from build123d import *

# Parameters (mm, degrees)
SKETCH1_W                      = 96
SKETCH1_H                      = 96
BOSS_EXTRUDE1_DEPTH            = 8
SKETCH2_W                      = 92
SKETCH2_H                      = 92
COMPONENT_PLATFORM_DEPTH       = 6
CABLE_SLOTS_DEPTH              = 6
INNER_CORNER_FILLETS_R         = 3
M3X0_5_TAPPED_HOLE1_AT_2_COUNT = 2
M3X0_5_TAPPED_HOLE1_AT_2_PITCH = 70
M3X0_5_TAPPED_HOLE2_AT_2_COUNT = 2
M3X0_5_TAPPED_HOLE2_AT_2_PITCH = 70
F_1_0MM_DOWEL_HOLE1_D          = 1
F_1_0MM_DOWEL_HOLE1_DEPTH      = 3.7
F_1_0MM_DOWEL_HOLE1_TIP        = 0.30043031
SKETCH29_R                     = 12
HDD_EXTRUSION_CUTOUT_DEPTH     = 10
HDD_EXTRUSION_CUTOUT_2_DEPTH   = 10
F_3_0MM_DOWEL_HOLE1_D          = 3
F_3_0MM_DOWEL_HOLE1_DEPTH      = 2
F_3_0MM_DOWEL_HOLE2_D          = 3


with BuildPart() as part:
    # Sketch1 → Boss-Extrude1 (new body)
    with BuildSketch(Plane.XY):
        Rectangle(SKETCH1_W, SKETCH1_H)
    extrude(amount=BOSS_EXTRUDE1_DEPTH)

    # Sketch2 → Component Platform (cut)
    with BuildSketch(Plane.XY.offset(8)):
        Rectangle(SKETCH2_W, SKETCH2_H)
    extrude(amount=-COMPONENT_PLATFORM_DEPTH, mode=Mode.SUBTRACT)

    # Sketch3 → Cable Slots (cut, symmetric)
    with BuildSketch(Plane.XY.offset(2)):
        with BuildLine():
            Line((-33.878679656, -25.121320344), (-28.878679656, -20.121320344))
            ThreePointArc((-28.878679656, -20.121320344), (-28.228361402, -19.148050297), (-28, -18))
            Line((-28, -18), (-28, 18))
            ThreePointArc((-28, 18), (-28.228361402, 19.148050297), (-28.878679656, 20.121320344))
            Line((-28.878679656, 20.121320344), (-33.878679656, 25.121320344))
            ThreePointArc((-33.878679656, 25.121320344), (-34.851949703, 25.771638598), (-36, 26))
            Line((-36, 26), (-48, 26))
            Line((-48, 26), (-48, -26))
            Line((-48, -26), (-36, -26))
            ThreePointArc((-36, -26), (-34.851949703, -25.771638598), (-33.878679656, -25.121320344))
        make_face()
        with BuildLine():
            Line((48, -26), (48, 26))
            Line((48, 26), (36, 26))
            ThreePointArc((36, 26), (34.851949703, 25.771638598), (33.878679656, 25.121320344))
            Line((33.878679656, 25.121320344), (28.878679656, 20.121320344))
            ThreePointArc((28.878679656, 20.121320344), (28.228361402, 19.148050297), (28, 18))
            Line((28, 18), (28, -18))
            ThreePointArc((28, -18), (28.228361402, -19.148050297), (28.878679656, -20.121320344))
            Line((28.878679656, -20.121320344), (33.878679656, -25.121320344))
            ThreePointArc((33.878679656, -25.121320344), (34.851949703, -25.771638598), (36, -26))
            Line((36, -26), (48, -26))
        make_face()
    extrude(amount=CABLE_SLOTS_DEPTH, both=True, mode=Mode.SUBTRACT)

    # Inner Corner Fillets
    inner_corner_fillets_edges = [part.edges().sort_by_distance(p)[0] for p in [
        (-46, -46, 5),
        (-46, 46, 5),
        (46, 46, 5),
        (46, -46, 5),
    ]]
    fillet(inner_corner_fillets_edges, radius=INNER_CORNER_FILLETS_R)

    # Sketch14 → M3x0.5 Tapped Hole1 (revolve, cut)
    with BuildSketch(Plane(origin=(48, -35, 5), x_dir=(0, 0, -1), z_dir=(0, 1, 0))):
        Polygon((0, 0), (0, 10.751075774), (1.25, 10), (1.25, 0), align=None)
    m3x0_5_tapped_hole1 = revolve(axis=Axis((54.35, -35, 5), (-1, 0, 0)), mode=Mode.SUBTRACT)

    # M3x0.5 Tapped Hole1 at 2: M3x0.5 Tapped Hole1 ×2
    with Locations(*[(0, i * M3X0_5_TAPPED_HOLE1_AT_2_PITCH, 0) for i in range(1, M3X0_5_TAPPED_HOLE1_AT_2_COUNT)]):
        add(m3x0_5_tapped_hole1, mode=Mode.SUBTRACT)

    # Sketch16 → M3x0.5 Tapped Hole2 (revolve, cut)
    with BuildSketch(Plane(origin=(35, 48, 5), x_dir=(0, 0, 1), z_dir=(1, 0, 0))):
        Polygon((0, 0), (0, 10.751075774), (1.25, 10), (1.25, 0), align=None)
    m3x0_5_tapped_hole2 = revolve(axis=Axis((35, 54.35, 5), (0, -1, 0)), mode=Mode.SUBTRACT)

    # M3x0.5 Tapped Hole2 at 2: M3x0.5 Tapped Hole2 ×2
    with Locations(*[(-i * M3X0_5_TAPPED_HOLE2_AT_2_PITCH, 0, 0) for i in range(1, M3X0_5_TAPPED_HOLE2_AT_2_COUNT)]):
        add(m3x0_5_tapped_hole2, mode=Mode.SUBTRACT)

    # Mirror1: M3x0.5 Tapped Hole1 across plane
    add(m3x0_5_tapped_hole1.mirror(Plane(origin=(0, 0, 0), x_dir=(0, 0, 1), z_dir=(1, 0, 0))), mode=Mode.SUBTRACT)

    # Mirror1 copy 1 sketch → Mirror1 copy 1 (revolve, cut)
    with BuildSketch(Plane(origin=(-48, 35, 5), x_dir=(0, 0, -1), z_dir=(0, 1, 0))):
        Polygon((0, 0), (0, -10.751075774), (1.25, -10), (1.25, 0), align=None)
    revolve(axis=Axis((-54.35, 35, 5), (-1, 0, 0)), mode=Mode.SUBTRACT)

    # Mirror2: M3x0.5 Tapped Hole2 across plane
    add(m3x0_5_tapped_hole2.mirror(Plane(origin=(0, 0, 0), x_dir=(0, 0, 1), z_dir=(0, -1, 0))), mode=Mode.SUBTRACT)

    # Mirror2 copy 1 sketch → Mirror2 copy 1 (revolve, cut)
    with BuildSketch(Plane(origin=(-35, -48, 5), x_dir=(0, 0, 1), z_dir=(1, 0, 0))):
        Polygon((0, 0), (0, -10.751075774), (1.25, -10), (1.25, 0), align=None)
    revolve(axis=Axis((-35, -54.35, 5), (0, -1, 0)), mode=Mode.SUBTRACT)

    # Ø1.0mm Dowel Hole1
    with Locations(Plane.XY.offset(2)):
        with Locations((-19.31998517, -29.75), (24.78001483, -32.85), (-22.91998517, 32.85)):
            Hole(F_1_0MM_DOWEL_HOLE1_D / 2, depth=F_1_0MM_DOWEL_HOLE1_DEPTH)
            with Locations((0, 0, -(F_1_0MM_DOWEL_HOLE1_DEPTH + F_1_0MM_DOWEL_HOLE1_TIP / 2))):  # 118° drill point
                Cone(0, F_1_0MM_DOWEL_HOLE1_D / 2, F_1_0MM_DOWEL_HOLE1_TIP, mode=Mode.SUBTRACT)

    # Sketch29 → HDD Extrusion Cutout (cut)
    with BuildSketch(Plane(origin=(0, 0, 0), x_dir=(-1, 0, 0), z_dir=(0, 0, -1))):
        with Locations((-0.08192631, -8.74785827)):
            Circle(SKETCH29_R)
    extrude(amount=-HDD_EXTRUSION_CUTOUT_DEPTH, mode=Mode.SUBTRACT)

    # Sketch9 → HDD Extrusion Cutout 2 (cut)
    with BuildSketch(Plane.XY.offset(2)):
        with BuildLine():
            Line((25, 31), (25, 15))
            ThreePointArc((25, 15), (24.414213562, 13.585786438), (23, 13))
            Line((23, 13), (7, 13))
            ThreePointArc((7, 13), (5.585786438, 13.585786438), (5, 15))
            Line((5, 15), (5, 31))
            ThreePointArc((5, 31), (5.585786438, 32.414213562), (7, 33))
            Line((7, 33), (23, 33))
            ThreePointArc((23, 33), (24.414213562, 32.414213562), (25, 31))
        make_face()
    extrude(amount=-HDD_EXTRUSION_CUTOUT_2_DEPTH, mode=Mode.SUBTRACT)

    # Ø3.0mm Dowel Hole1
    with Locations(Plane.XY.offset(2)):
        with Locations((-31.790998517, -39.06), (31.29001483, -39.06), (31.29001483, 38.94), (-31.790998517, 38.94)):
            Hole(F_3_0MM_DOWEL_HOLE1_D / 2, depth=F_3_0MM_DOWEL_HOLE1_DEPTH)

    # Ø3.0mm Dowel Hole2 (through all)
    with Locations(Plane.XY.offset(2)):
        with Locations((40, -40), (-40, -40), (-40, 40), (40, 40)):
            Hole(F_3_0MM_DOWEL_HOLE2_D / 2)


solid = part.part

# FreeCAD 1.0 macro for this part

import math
import FreeCAD as App
import Part
import Sketcher

V = App.Vector
Q = App.Units.Quantity


def edges_at(feature, points):
    """Names of the edges that pass closest to the given points."""
    edges = feature.Shape.Edges
    near = lambda p: min(range(len(edges)), key=lambda i: edges[i].distToShape(Part.Vertex(*p))[0])
    return sorted({f"Edge{near(p) + 1}" for p in points})

doc = App.newDocument("Part")
body = doc.addObject("PartDesign::Body", "Body")

sketch1 = doc.addObject("Sketcher::SketchObject", "Sketch")
body.addObject(sketch1)
sketch1.AttachmentSupport = (doc.XY_Plane, [""])
sketch1.MapMode = "FlatFace"
sketch1.addGeometry([
    Part.LineSegment(V(-48, 48, 0), V(-48, -48, 0)),
    Part.LineSegment(V(-48, -48, 0), V(48, -48, 0)),
    Part.LineSegment(V(48, -48, 0), V(48, 48, 0)),
    Part.LineSegment(V(48, 48, 0), V(-48, 48, 0)),
], False)
sketch1.addConstraint([
    Sketcher.Constraint("Coincident", 0, 2, 1, 1),
    Sketcher.Constraint("Coincident", 1, 2, 2, 1),
    Sketcher.Constraint("Coincident", 2, 2, 3, 1),
    Sketcher.Constraint("Coincident", 3, 2, 0, 1),
    Sketcher.Constraint("Vertical", 0),
    Sketcher.Constraint("Horizontal", 1),
    Sketcher.Constraint("Vertical", 2),
    Sketcher.Constraint("Horizontal", 3),
    Sketcher.Constraint("Symmetric", 0, 2, 2, 2, -1, 1),
    Sketcher.Constraint("Equal", 3, 0),
    Sketcher.Constraint("DistanceX", 1, 1, 1, 2, Q("96 mm")),
])
pad1 = doc.addObject("PartDesign::Pad", "Pad")
body.addObject(pad1)
pad1.Profile = sketch1
pad1.Length = 8

sketch2 = doc.addObject("Sketcher::SketchObject", "Sketch001")
body.addObject(sketch2)
sketch2.AttachmentSupport = (doc.XY_Plane, [""])
sketch2.MapMode = "FlatFace"
sketch2.AttachmentOffset = App.Placement(V(0, 0, 8), App.Rotation())
sketch2.addGeometry([
    Part.LineSegment(V(-46, 46, 0), V(-46, -46, 0)),
    Part.LineSegment(V(-46, -46, 0), V(46, -46, 0)),
    Part.LineSegment(V(46, -46, 0), V(46, 46, 0)),
    Part.LineSegment(V(46, 46, 0), V(-46, 46, 0)),
], False)
sketch2.addConstraint([
    Sketcher.Constraint("Coincident", 0, 2, 1, 1),
    Sketcher.Constraint("Coincident", 1, 2, 2, 1),
    Sketcher.Constraint("Coincident", 2, 2, 3, 1),
    Sketcher.Constraint("Coincident", 3, 2, 0, 1),
    Sketcher.Constraint("Vertical", 0),
    Sketcher.Constraint("Horizontal", 1),
    Sketcher.Constraint("Vertical", 2),
    Sketcher.Constraint("Horizontal", 3),
    Sketcher.Constraint("Symmetric", 0, 2, 2, 2, -1, 1),
    Sketcher.Constraint("Equal", 3, 0),
    Sketcher.Constraint("DistanceX", 1, 1, 1, 2, Q("92 mm")),
])
pocket1 = doc.addObject("PartDesign::Pocket", "Pocket")
body.addObject(pocket1)
pocket1.Profile = sketch2
pocket1.Length = 6

sketch3 = doc.addObject("Sketcher::SketchObject", "Sketch002")
body.addObject(sketch3)
sketch3.AttachmentSupport = (doc.XY_Plane, [""])
sketch3.MapMode = "FlatFace"
sketch3.AttachmentOffset = App.Placement(V(0, 0, 2), App.Rotation())
sketch3.addGeometry([
    Part.LineSegment(V(-33.9, -25.1, 0), V(-28.9, -20.1, 0)),
    Part.ArcOfCircle(Part.Circle(V(-31, -18, 0), V(0, 0, 1), 3), math.radians(-45), math.radians(0)),
    Part.LineSegment(V(-28, -18, 0), V(-28, 18, 0)),
    Part.ArcOfCircle(Part.Circle(V(-31, 18, 0), V(0, 0, 1), 3), math.radians(0), math.radians(45)),
    Part.LineSegment(V(-28.9, 20.1, 0), V(-33.9, 25.1, 0)),
    Part.ArcOfCircle(Part.Circle(V(-36, 23, 0), V(0, 0, 1), 3), math.radians(45), math.radians(90)),
    Part.LineSegment(V(-36, 26, 0), V(-48, 26, 0)),
    Part.LineSegment(V(-48, 26, 0), V(-48, -26, 0)),
    Part.LineSegment(V(-48, -26, 0), V(-36, -26, 0)),
    Part.ArcOfCircle(Part.Circle(V(-36, -23, 0), V(0, 0, 1), 3), math.radians(-90), math.radians(-45)),
    Part.LineSegment(V(48, -26, 0), V(48, 26, 0)),
    Part.LineSegment(V(48, 26, 0), V(36, 26, 0)),
    Part.ArcOfCircle(Part.Circle(V(36, 23, 0), V(0, 0, 1), 3), math.radians(90), math.radians(135)),
    Part.LineSegment(V(33.9, 25.1, 0), V(28.9, 20.1, 0)),
    Part.ArcOfCircle(Part.Circle(V(31, 18, 0), V(0, 0, 1), 3), math.radians(135), math.radians(180)),
    Part.LineSegment(V(28, 18, 0), V(28, -18, 0)),
    Part.ArcOfCircle(Part.Circle(V(31, -18, 0), V(0, 0, 1), 3), math.radians(180), math.radians(225)),
    Part.LineSegment(V(28.9, -20.1, 0), V(33.9, -25.1, 0)),
    Part.ArcOfCircle(Part.Circle(V(36, -23, 0), V(0, 0, 1), 3), math.radians(-135), math.radians(-90)),
    Part.LineSegment(V(36, -26, 0), V(48, -26, 0)),
], False)
sketch3.addConstraint([
    Sketcher.Constraint("Tangent", 0, 2, 1, 1),
    Sketcher.Constraint("Tangent", 1, 2, 2, 1),
    Sketcher.Constraint("Tangent", 2, 2, 3, 1),
    Sketcher.Constraint("Tangent", 3, 2, 4, 1),
    Sketcher.Constraint("Tangent", 4, 2, 5, 1),
    Sketcher.Constraint("Tangent", 5, 2, 6, 1),
    Sketcher.Constraint("Coincident", 6, 2, 7, 1),
    Sketcher.Constraint("Coincident", 7, 2, 8, 1),
    Sketcher.Constraint("Tangent", 8, 2, 9, 1),
    Sketcher.Constraint("Tangent", 9, 2, 0, 1),
    Sketcher.Constraint("Coincident", 10, 2, 11, 1),
    Sketcher.Constraint("Tangent", 11, 2, 12, 1),
    Sketcher.Constraint("Tangent", 12, 2, 13, 1),
    Sketcher.Constraint("Tangent", 13, 2, 14, 1),
    Sketcher.Constraint("Tangent", 14, 2, 15, 1),
    Sketcher.Constraint("Tangent", 15, 2, 16, 1),
    Sketcher.Constraint("Tangent", 16, 2, 17, 1),
    Sketcher.Constraint("Tangent", 17, 2, 18, 1),
    Sketcher.Constraint("Tangent", 18, 2, 19, 1),
    Sketcher.Constraint("Coincident", 19, 2, 10, 1),
    Sketcher.Constraint("Vertical", 2),
    Sketcher.Constraint("Horizontal", 6),
    Sketcher.Constraint("Vertical", 7),
    Sketcher.Constraint("Horizontal", 8),
    Sketcher.Constraint("Vertical", 10),
    Sketcher.Constraint("Horizontal", 11),
    Sketcher.Constraint("Vertical", 15),
    Sketcher.Constraint("Horizontal", 19),
    Sketcher.Constraint("Equal", 1, 3),
    Sketcher.Constraint("Equal", 3, 5),
    Sketcher.Constraint("Equal", 5, 9),
    Sketcher.Constraint("Equal", 9, 12),
    Sketcher.Constraint("Equal", 12, 14),
    Sketcher.Constraint("Equal", 14, 16),
    Sketcher.Constraint("Equal", 16, 18),
    Sketcher.Constraint("Symmetric", 9, 3, 12, 3, -1, 1),
    Sketcher.Constraint("Symmetric", 1, 3, 14, 3, -1, 1),
    Sketcher.Constraint("Symmetric", 5, 3, 18, 3, -1, 1),
    Sketcher.Constraint("Symmetric", 5, 3, 12, 3, -2),
    Sketcher.Constraint("Perpendicular", 0, 4),
    Sketcher.Constraint("Perpendicular", 13, 17),
    Sketcher.Constraint("Horizontal", 3, 3, 14, 3),
    Sketcher.Constraint("Equal", 8, 11),
    Sketcher.Constraint("Radius", 1, Q("3 mm")),
    Sketcher.Constraint("DistanceX", 6, 2, 6, 1, Q("12 mm")),
    Sketcher.Constraint("DistanceY", 2, 1, 2, 2, Q("36 mm")),
    Sketcher.Constraint("DistanceY", 7, 2, 7, 1, Q("52 mm")),
    Sketcher.Constraint("DistanceX", 1, 3, -1, 1, Q("31 mm")),
])
pocket2 = doc.addObject("PartDesign::Pocket", "Pocket001")
body.addObject(pocket2)
pocket2.Profile = sketch3
pocket2.Length = 12
pocket2.Midplane = True
doc.recompute()

fillet = doc.addObject("PartDesign::Fillet", "Fillet")
body.addObject(fillet)
fillet.Base = (pocket2, edges_at(pocket2, [
    (-46, -46, 5),
    (-46, 46, 5),
    (46, 46, 5),
    (46, -46, 5),
]))
fillet.Radius = 3

sketch4 = doc.addObject("Sketcher::SketchObject", "Sketch003")
body.addObject(sketch4)
sketch4.AttachmentSupport = (doc.XZ_Plane, [""])
sketch4.MapMode = "FlatFace"
sketch4.AttachmentOffset = App.Placement(V(0, 0, 35), App.Rotation())
sketch4.addGeometry([
    Part.LineSegment(V(37.2, 5, 0), V(48, 5, 0)),
    Part.LineSegment(V(48, 5, 0), V(48, 3.8, 0)),
    Part.LineSegment(V(48, 3.8, 0), V(38, 3.8, 0)),
    Part.LineSegment(V(38, 3.8, 0), V(37.2, 5, 0)),
], False)
sketch4.addGeometry(Part.LineSegment(V(48, 5, 0), V(37.2, 5, 0)), True)
sketch4.addConstraint([
    Sketcher.Constraint("Coincident", 0, 2, 1, 1),
    Sketcher.Constraint("Coincident", 1, 2, 2, 1),
    Sketcher.Constraint("Coincident", 2, 2, 3, 1),
    Sketcher.Constraint("Coincident", 3, 2, 0, 1),
    Sketcher.Constraint("Horizontal", 0),
    Sketcher.Constraint("Vertical", 1),
    Sketcher.Constraint("Horizontal", 2),
    Sketcher.Constraint("Horizontal", 4),
    Sketcher.Constraint("Coincident", 4, 1, 0, 2),
    Sketcher.Constraint("Equal", 0, 4),
    Sketcher.Constraint("DistanceX", 2, 2, 2, 1, Q("10 mm")),
    Sketcher.Constraint("Angle", 3, Q("121 deg")),
    Sketcher.Constraint("DistanceX", -1, 1, 0, 2, Q("48 mm")),
    Sketcher.Constraint("DistanceY", -1, 1, 0, 2, Q("5 mm")),
    Sketcher.Constraint("DistanceY", 1, 2, 1, 1, Q("1.25 mm")),
])
groove = doc.addObject("PartDesign::Groove", "Groove")
body.addObject(groove)
groove.Profile = sketch4
groove.ReferenceAxis = (sketch4, ["Axis0"])
groove.Angle = 360
doc.recompute()

linearpattern = doc.addObject("PartDesign::LinearPattern", "LinearPattern")
body.addObject(linearpattern)
linearpattern.Originals = [groove]
linearpattern.Direction = (doc.Y_Axis, [""])
linearpattern.Mode = "offset"
linearpattern.Offset = 70
linearpattern.Occurrences = 2
body.Tip = linearpattern

sketch5 = doc.addObject("Sketcher::SketchObject", "Sketch004")
body.addObject(sketch5)
sketch5.AttachmentSupport = (doc.YZ_Plane, [""])
sketch5.MapMode = "FlatFace"
sketch5.AttachmentOffset = App.Placement(V(0, 0, 35), App.Rotation())
sketch5.addGeometry([
    Part.LineSegment(V(37.2, 5, 0), V(48, 5, 0)),
    Part.LineSegment(V(48, 5, 0), V(48, 6.2, 0)),
    Part.LineSegment(V(48, 6.2, 0), V(38, 6.2, 0)),
    Part.LineSegment(V(38, 6.2, 0), V(37.2, 5, 0)),
], False)
sketch5.addGeometry(Part.LineSegment(V(48, 5, 0), V(37.2, 5, 0)), True)
sketch5.addConstraint([
    Sketcher.Constraint("Coincident", 0, 2, 1, 1),
    Sketcher.Constraint("Coincident", 1, 2, 2, 1),
    Sketcher.Constraint("Coincident", 2, 2, 3, 1),
    Sketcher.Constraint("Coincident", 3, 2, 0, 1),
    Sketcher.Constraint("Horizontal", 0),
    Sketcher.Constraint("Vertical", 1),
    Sketcher.Constraint("Horizontal", 2),
    Sketcher.Constraint("Horizontal", 4),
    Sketcher.Constraint("Coincident", 4, 1, 0, 2),
    Sketcher.Constraint("Equal", 0, 4),
    Sketcher.Constraint("DistanceX", 2, 2, 2, 1, Q("10 mm")),
    Sketcher.Constraint("Angle", 3, Q("-121 deg")),
    Sketcher.Constraint("DistanceX", -1, 1, 0, 2, Q("48 mm")),
    Sketcher.Constraint("DistanceY", -1, 1, 0, 2, Q("5 mm")),
    Sketcher.Constraint("DistanceY", 1, 1, 1, 2, Q("1.25 mm")),
])
groove2 = doc.addObject("PartDesign::Groove", "Groove001")
body.addObject(groove2)
groove2.Profile = sketch5
groove2.ReferenceAxis = (sketch5, ["Axis0"])
groove2.Angle = 360
doc.recompute()

linearpattern2 = doc.addObject("PartDesign::LinearPattern", "LinearPattern001")
body.addObject(linearpattern2)
linearpattern2.Originals = [groove2]
linearpattern2.Direction = (doc.X_Axis, [""])
linearpattern2.Mode = "offset"
linearpattern2.Offset = 70
linearpattern2.Occurrences = 2
linearpattern2.Reversed = True
body.Tip = linearpattern2
doc.recompute()

mirrored = doc.addObject("PartDesign::Mirrored", "Mirrored")
body.addObject(mirrored)
mirrored.Originals = [groove]
mirrored.MirrorPlane = (doc.YZ_Plane, [""])
body.Tip = mirrored

sketch6 = doc.addObject("Sketcher::SketchObject", "Sketch005")
body.addObject(sketch6)
sketch6.AttachmentSupport = (doc.XZ_Plane, [""])
sketch6.MapMode = "FlatFace"
sketch6.AttachmentOffset = App.Placement(V(0, 0, -35), App.Rotation())
sketch6.addGeometry([
    Part.LineSegment(V(-48, 5, 0), V(-37.2, 5, 0)),
    Part.LineSegment(V(-37.2, 5, 0), V(-38, 3.8, 0)),
    Part.LineSegment(V(-38, 3.8, 0), V(-48, 3.8, 0)),
    Part.LineSegment(V(-48, 3.8, 0), V(-48, 5, 0)),
], False)
sketch6.addGeometry(Part.LineSegment(V(-37.2, 5, 0), V(-48, 5, 0)), True)
sketch6.addConstraint([
    Sketcher.Constraint("Coincident", 0, 2, 1, 1),
    Sketcher.Constraint("Coincident", 1, 2, 2, 1),
    Sketcher.Constraint("Coincident", 2, 2, 3, 1),
    Sketcher.Constraint("Coincident", 3, 2, 0, 1),
    Sketcher.Constraint("Horizontal", 0),
    Sketcher.Constraint("Horizontal", 2),
    Sketcher.Constraint("Vertical", 3),
    Sketcher.Constraint("Horizontal", 4),
    Sketcher.Constraint("Coincident", 4, 1, 0, 2),
    Sketcher.Constraint("Vertical", 2, 2, 4, 2),
    Sketcher.Constraint("DistanceX", 2, 2, 2, 1, Q("10 mm")),
    Sketcher.Constraint("Angle", 1, Q("-121 deg")),
    Sketcher.Constraint("DistanceY", -1, 1, 0, 2, Q("5 mm")),
    Sketcher.Constraint("DistanceX", 1, 2, -1, 1, Q("38 mm")),
    Sketcher.Constraint("DistanceY", 3, 1, 3, 2, Q("1.25 mm")),
])
groove3 = doc.addObject("PartDesign::Groove", "Groove002")
body.addObject(groove3)
groove3.Profile = sketch6
groove3.ReferenceAxis = (sketch6, ["Axis0"])
groove3.Angle = 360
doc.recompute()

mirrored2 = doc.addObject("PartDesign::Mirrored", "Mirrored001")
body.addObject(mirrored2)
mirrored2.Originals = [groove2]
mirrored2.MirrorPlane = (doc.XZ_Plane, [""])
body.Tip = mirrored2

sketch7 = doc.addObject("Sketcher::SketchObject", "Sketch006")
body.addObject(sketch7)
sketch7.AttachmentSupport = (doc.YZ_Plane, [""])
sketch7.MapMode = "FlatFace"
sketch7.AttachmentOffset = App.Placement(V(0, 0, -35), App.Rotation())
sketch7.addGeometry([
    Part.LineSegment(V(-48, 5, 0), V(-37.2, 5, 0)),
    Part.LineSegment(V(-37.2, 5, 0), V(-38, 6.2, 0)),
    Part.LineSegment(V(-38, 6.2, 0), V(-48, 6.2, 0)),
    Part.LineSegment(V(-48, 6.2, 0), V(-48, 5, 0)),
], False)
sketch7.addGeometry(Part.LineSegment(V(-37.2, 5, 0), V(-48, 5, 0)), True)
sketch7.addConstraint([
    Sketcher.Constraint("Coincident", 0, 2, 1, 1),
    Sketcher.Constraint("Coincident", 1, 2, 2, 1),
    Sketcher.Constraint("Coincident", 2, 2, 3, 1),
    Sketcher.Constraint("Coincident", 3, 2, 0, 1),
    Sketcher.Constraint("Horizontal", 0),
    Sketcher.Constraint("Horizontal", 2),
    Sketcher.Constraint("Vertical", 3),
    Sketcher.Constraint("Horizontal", 4),
    Sketcher.Constraint("Coincident", 4, 1, 0, 2),
    Sketcher.Constraint("Vertical", 2, 2, 4, 2),
    Sketcher.Constraint("DistanceX", 2, 2, 2, 1, Q("10 mm")),
    Sketcher.Constraint("Angle", 1, Q("121 deg")),
    Sketcher.Constraint("DistanceY", -1, 1, 0, 2, Q("5 mm")),
    Sketcher.Constraint("DistanceX", 1, 2, -1, 1, Q("38 mm")),
    Sketcher.Constraint("DistanceY", 3, 2, 3, 1, Q("1.25 mm")),
])
groove4 = doc.addObject("PartDesign::Groove", "Groove003")
body.addObject(groove4)
groove4.Profile = sketch7
groove4.ReferenceAxis = (sketch7, ["Axis0"])
groove4.Angle = 360

sketch8 = doc.addObject("Sketcher::SketchObject", "Sketch007")
body.addObject(sketch8)
sketch8.AttachmentSupport = (doc.XY_Plane, [""])
sketch8.MapMode = "FlatFace"
sketch8.AttachmentOffset = App.Placement(V(0, 0, 2), App.Rotation())
sketch8.addGeometry([
    Part.Circle(V(-19.3, -29.8, 0), V(0, 0, 1), 0.5),
    Part.Circle(V(24.8, -32.9, 0), V(0, 0, 1), 0.5),
    Part.Circle(V(-22.9, 32.9, 0), V(0, 0, 1), 0.5),
], False)
sketch8.addConstraint([
    Sketcher.Constraint("Equal", 0, 1),
    Sketcher.Constraint("Equal", 1, 2),
    Sketcher.Constraint("Diameter", 0, Q("1 mm")),
    Sketcher.Constraint("DistanceX", 0, 3, 1, 3, Q("44.1 mm")),
    Sketcher.Constraint("DistanceY", 1, 3, 0, 3, Q("3.1 mm")),
    Sketcher.Constraint("DistanceX", 2, 3, 0, 3, Q("3.6 mm")),
    Sketcher.Constraint("DistanceY", 0, 3, 2, 3, Q("62.6 mm")),
    Sketcher.Constraint("DistanceY", 0, 3, -1, 1, Q("29.75 mm")),
    Sketcher.Constraint("DistanceX", 0, 3, -1, 1, Q("19.319985 mm")),
])
doc.recompute()
hole = doc.addObject("PartDesign::Hole", "Hole")
body.addObject(hole)
hole.Profile = sketch8
hole.ThreadType = "None"
hole.Diameter = 1
hole.DepthType = "Dimension"
hole.Depth = 3.7
hole.DrillPoint = "Angled"
hole.DrillPointAngle = 118

sketch9 = doc.addObject("Sketcher::SketchObject", "Sketch008")
body.addObject(sketch9)
sketch9.AttachmentSupport = (doc.XY_Plane, [""])
sketch9.MapMode = "FlatFace"
sketch9.addGeometry(Part.Circle(V(0, -9, 0), V(0, 0, 1), 12), False)
sketch9.addConstraint([
    Sketcher.Constraint("Diameter", 0, Q("24 mm")),
    Sketcher.Constraint("DistanceY", 0, 3, -1, 1, Q("8.747858 mm")),
    Sketcher.Constraint("DistanceX", -1, 1, 0, 3, Q("0.081926 mm")),
])
pocket3 = doc.addObject("PartDesign::Pocket", "Pocket002")
body.addObject(pocket3)
pocket3.Profile = sketch9
pocket3.Length = 10
pocket3.Reversed = True

sketch10 = doc.addObject("Sketcher::SketchObject", "Sketch009")
body.addObject(sketch10)
sketch10.AttachmentSupport = (doc.XY_Plane, [""])
sketch10.MapMode = "FlatFace"
sketch10.AttachmentOffset = App.Placement(V(0, 0, 2), App.Rotation())
sketch10.addGeometry([
    Part.LineSegment(V(25, 15, 0), V(25, 31, 0)),
    Part.ArcOfCircle(Part.Circle(V(23, 31, 0), V(0, 0, 1), 2), math.radians(0), math.radians(90)),
    Part.LineSegment(V(23, 33, 0), V(7, 33, 0)),
    Part.ArcOfCircle(Part.Circle(V(7, 31, 0), V(0, 0, 1), 2), math.radians(90), math.radians(180)),
    Part.LineSegment(V(5, 31, 0), V(5, 15, 0)),
    Part.ArcOfCircle(Part.Circle(V(7, 15, 0), V(0, 0, 1), 2), math.radians(-180), math.radians(-90)),
    Part.LineSegment(V(7, 13, 0), V(23, 13, 0)),
    Part.ArcOfCircle(Part.Circle(V(23, 15, 0), V(0, 0, 1), 2), math.radians(-90), math.radians(0)),
], False)
sketch10.addConstraint([
    Sketcher.Constraint("Tangent", 0, 2, 1, 1),
    Sketcher.Constraint("Tangent", 1, 2, 2, 1),
    Sketcher.Constraint("Tangent", 2, 2, 3, 1),
    Sketcher.Constraint("Tangent", 3, 2, 4, 1),
    Sketcher.Constraint("Tangent", 4, 2, 5, 1),
    Sketcher.Constraint("Tangent", 5, 2, 6, 1),
    Sketcher.Constraint("Tangent", 6, 2, 7, 1),
    Sketcher.Constraint("Tangent", 7, 2, 0, 1),
    Sketcher.Constraint("Vertical", 0),
    Sketcher.Constraint("Horizontal", 2),
    Sketcher.Constraint("Vertical", 4),
    Sketcher.Constraint("Horizontal", 6),
    Sketcher.Constraint("Equal", 1, 3),
    Sketcher.Constraint("Equal", 3, 5),
    Sketcher.Constraint("Equal", 5, 7),
    Sketcher.Constraint("Equal", 6, 0),
    Sketcher.Constraint("Radius", 1, Q("2 mm")),
    Sketcher.Constraint("DistanceX", 2, 2, 2, 1, Q("16 mm")),
    Sketcher.Constraint("DistanceX", -1, 1, 1, 3, Q("23 mm")),
    Sketcher.Constraint("DistanceY", -1, 1, 1, 3, Q("31 mm")),
])
pocket4 = doc.addObject("PartDesign::Pocket", "Pocket003")
body.addObject(pocket4)
pocket4.Profile = sketch10
pocket4.Length = 10

sketch11 = doc.addObject("Sketcher::SketchObject", "Sketch010")
body.addObject(sketch11)
sketch11.AttachmentSupport = (doc.XY_Plane, [""])
sketch11.MapMode = "FlatFace"
sketch11.AttachmentOffset = App.Placement(V(0, 0, 2), App.Rotation())
sketch11.addGeometry([
    Part.Circle(V(-31.8, -39.1, 0), V(0, 0, 1), 1.5),
    Part.Circle(V(31.3, -39.1, 0), V(0, 0, 1), 1.5),
    Part.Circle(V(31.3, 38.9, 0), V(0, 0, 1), 1.5),
    Part.Circle(V(-31.8, 38.9, 0), V(0, 0, 1), 1.5),
], False)
sketch11.addConstraint([
    Sketcher.Constraint("Equal", 0, 1),
    Sketcher.Constraint("Equal", 1, 2),
    Sketcher.Constraint("Equal", 2, 3),
    Sketcher.Constraint("Horizontal", 0, 3, 1, 3),
    Sketcher.Constraint("Horizontal", 2, 3, 3, 3),
    Sketcher.Constraint("Vertical", 1, 3, 2, 3),
    Sketcher.Constraint("Vertical", 0, 3, 3, 3),
    Sketcher.Constraint("Diameter", 0, Q("3 mm")),
    Sketcher.Constraint("DistanceY", 1, 3, 2, 3, Q("78 mm")),
    Sketcher.Constraint("DistanceY", 0, 3, -1, 1, Q("39.06 mm")),
    Sketcher.Constraint("DistanceX", 0, 3, -1, 1, Q("31.790999 mm")),
    Sketcher.Constraint("DistanceX", -1, 1, 1, 3, Q("31.290015 mm")),
])
doc.recompute()
hole2 = doc.addObject("PartDesign::Hole", "Hole001")
body.addObject(hole2)
hole2.Profile = sketch11
hole2.ThreadType = "None"
hole2.Diameter = 3
hole2.DepthType = "Dimension"
hole2.Depth = 2
hole2.DrillPoint = "Flat"

sketch12 = doc.addObject("Sketcher::SketchObject", "Sketch011")
body.addObject(sketch12)
sketch12.AttachmentSupport = (doc.XY_Plane, [""])
sketch12.MapMode = "FlatFace"
sketch12.AttachmentOffset = App.Placement(V(0, 0, 2), App.Rotation())
sketch12.addGeometry([
    Part.Circle(V(40, -40, 0), V(0, 0, 1), 1.5),
    Part.Circle(V(-40, -40, 0), V(0, 0, 1), 1.5),
    Part.Circle(V(-40, 40, 0), V(0, 0, 1), 1.5),
    Part.Circle(V(40, 40, 0), V(0, 0, 1), 1.5),
], False)
sketch12.addConstraint([
    Sketcher.Constraint("Equal", 0, 1),
    Sketcher.Constraint("Equal", 1, 2),
    Sketcher.Constraint("Equal", 2, 3),
    Sketcher.Constraint("Symmetric", 0, 3, 2, 3, -1, 1),
    Sketcher.Constraint("Symmetric", 1, 3, 3, 3, -1, 1),
    Sketcher.Constraint("Symmetric", 0, 3, 1, 3, -2),
    Sketcher.Constraint("Diameter", 0, Q("3 mm")),
    Sketcher.Constraint("DistanceX", -1, 1, 0, 3, Q("40 mm")),
    Sketcher.Constraint("DistanceY", 0, 3, -1, 1, Q("40 mm")),
])
doc.recompute()
hole3 = doc.addObject("PartDesign::Hole", "Hole002")
body.addObject(hole3)
hole3.Profile = sketch12
hole3.ThreadType = "None"
hole3.Diameter = 3
hole3.DepthType = "ThroughAll"

doc.recompute()
